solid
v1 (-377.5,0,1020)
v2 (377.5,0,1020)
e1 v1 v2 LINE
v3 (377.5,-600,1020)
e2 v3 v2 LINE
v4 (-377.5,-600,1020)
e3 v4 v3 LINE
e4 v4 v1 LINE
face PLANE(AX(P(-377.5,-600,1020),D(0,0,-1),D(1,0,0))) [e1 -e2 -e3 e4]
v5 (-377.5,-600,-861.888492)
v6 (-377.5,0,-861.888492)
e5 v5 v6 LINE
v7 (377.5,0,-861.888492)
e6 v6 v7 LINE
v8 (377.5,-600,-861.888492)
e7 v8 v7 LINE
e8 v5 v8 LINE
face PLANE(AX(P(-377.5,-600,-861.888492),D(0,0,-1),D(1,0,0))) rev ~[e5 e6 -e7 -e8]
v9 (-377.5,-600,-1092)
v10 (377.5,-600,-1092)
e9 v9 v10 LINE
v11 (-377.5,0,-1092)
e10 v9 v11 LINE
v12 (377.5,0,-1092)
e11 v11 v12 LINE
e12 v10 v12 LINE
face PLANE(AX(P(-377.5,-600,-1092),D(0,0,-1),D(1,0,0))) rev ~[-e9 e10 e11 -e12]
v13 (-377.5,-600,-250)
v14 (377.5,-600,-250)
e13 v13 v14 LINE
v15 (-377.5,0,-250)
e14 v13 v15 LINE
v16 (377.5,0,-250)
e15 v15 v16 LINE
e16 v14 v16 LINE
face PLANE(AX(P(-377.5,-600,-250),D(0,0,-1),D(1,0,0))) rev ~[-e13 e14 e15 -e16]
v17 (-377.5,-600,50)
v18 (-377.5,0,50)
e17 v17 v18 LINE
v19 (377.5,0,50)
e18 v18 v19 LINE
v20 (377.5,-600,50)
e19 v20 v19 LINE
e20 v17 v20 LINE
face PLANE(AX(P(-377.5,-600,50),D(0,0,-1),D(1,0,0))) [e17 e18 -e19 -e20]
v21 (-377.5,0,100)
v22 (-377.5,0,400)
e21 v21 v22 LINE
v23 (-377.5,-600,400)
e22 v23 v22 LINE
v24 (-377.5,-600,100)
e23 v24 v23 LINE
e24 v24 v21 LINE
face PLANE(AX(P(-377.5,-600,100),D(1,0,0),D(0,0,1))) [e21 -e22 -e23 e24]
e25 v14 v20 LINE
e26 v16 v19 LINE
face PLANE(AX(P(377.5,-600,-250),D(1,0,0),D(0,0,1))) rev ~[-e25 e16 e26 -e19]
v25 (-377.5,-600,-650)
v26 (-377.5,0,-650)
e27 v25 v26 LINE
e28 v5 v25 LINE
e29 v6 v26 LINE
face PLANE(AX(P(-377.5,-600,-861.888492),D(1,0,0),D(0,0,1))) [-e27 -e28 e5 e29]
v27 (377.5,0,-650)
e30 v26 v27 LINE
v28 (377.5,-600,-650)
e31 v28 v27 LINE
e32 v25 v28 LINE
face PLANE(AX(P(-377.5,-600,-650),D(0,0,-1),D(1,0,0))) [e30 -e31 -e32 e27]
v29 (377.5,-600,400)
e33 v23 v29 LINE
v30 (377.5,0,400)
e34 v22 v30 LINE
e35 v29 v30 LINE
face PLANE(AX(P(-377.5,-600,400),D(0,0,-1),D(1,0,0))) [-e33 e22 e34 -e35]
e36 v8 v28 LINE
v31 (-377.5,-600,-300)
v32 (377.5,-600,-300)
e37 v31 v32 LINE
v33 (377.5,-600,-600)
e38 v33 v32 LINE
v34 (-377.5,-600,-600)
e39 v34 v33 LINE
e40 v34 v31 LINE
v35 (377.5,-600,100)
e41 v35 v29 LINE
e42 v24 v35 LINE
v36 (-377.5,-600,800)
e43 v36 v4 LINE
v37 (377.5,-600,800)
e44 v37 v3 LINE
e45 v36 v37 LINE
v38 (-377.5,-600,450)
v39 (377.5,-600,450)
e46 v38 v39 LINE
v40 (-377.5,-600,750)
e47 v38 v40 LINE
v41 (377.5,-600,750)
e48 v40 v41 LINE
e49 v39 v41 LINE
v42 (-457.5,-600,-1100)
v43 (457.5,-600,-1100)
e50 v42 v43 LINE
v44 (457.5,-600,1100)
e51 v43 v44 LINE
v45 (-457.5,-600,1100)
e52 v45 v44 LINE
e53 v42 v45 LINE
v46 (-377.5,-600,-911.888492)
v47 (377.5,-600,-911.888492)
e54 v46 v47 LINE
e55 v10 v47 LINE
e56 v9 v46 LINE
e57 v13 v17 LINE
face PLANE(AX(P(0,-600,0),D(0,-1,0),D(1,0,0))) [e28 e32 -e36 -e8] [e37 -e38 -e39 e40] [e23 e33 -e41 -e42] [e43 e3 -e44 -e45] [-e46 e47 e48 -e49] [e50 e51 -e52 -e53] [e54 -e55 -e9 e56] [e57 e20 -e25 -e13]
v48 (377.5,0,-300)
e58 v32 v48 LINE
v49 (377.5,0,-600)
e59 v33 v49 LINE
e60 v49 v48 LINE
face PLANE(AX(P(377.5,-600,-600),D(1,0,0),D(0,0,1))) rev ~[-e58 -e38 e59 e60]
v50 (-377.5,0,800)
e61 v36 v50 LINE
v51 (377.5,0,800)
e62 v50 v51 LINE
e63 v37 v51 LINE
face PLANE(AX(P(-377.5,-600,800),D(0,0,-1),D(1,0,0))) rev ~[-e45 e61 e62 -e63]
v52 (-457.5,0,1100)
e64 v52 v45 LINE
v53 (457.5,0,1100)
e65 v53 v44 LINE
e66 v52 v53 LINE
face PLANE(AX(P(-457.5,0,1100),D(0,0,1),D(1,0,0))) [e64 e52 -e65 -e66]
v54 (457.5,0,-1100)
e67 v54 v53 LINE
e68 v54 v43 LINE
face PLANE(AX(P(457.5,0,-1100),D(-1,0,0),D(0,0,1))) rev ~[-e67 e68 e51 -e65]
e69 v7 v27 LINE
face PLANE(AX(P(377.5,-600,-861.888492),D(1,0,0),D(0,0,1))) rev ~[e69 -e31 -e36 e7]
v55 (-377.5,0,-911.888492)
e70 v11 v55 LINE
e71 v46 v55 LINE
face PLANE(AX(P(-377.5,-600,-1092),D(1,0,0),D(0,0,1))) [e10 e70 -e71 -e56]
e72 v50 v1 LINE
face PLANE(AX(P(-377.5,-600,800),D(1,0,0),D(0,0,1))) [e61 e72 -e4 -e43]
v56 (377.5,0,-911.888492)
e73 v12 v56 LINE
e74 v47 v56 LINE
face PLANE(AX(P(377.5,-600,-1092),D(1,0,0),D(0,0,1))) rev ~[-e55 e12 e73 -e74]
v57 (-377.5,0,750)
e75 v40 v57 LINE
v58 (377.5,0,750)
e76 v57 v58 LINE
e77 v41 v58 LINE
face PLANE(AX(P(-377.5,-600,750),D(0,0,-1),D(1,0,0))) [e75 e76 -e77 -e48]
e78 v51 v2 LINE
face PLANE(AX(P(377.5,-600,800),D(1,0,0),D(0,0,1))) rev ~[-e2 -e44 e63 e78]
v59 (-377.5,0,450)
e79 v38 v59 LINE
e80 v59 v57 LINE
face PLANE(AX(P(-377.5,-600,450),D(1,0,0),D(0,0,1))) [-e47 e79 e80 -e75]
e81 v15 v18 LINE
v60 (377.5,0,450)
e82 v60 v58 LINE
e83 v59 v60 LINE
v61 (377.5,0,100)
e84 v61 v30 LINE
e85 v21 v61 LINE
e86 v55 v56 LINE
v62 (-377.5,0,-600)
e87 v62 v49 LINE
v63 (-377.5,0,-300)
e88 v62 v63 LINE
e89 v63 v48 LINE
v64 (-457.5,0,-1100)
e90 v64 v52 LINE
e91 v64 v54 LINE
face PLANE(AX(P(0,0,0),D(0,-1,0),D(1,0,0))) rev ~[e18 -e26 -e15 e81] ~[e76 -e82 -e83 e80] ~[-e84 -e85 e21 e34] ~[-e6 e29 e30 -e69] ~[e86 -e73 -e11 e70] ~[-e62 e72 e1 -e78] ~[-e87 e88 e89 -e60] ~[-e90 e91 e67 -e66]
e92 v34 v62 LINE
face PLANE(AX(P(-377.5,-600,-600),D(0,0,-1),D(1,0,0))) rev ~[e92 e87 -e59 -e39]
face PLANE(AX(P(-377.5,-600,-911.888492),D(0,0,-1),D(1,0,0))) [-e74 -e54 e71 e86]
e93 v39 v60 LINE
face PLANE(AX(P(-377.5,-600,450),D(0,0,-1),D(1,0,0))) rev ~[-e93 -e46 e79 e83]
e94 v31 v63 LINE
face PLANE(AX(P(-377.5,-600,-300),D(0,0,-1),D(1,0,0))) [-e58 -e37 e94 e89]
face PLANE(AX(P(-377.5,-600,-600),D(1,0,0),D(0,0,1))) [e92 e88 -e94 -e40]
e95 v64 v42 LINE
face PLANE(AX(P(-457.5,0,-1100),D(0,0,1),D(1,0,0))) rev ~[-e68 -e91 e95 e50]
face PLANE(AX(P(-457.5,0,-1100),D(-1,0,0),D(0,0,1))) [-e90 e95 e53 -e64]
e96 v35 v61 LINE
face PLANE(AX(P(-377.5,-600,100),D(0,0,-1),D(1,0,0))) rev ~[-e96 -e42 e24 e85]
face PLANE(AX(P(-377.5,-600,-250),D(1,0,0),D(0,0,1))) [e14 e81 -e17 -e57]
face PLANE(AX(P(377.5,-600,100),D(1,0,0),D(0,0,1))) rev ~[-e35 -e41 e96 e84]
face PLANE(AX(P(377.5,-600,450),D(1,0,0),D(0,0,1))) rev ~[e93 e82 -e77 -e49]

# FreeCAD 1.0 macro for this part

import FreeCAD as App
import Part
import Sketcher

V = App.Vector
Q = App.Units.Quantity

doc = App.newDocument("Part")
body = doc.addObject("PartDesign::Body", "Body")

sketch1 = doc.addObject("Sketcher::SketchObject", "Sketch")
body.addObject(sketch1)
sketch1.AttachmentSupport = (doc.XZ_Plane, [""])
sketch1.MapMode = "FlatFace"
sketch1.addGeometry([
    Part.LineSegment(V(-457.5, 1100, 0), V(-457.5, -1100, 0)),
    Part.LineSegment(V(-457.5, -1100, 0), V(457.5, -1100, 0)),
    Part.LineSegment(V(457.5, -1100, 0), V(457.5, 1100, 0)),
    Part.LineSegment(V(457.5, 1100, 0), V(-457.5, 1100, 0)),
], False)
sketch1.addConstraint([
    Sketcher.Constraint("Coincident", 0, 2, 1, 1),
    Sketcher.Constraint("Coincident", 1, 2, 2, 1),
    Sketcher.Constraint("Coincident", 2, 2, 3, 1),
    Sketcher.Constraint("Coincident", 3, 2, 0, 1),
    Sketcher.Constraint("Vertical", 0),
    Sketcher.Constraint("Horizontal", 1),
    Sketcher.Constraint("Vertical", 2),
    Sketcher.Constraint("Horizontal", 3),
    Sketcher.Constraint("Symmetric", 0, 2, 2, 2, -1, 1),
    Sketcher.Constraint("DistanceX", 1, 1, 1, 2, Q("915 mm")),
    Sketcher.Constraint("DistanceY", 0, 2, 0, 1, Q("2200 mm")),
])
pad1 = doc.addObject("PartDesign::Pad", "Pad")
body.addObject(pad1)
pad1.Profile = sketch1
pad1.Length = 600

sketch2 = doc.addObject("Sketcher::SketchObject", "Sketch001")
body.addObject(sketch2)
sketch2.AttachmentSupport = (doc.XZ_Plane, [""])
sketch2.MapMode = "FlatFace"
sketch2.AttachmentOffset = App.Placement(V(0, 0, 600), App.Rotation())
sketch2.addGeometry([
    Part.LineSegment(V(-377.5, 1020, 0), V(-377.5, 800, 0)),
    Part.LineSegment(V(-377.5, 800, 0), V(377.5, 800, 0)),
    Part.LineSegment(V(377.5, 800, 0), V(377.5, 1020, 0)),
    Part.LineSegment(V(377.5, 1020, 0), V(-377.5, 1020, 0)),
    Part.LineSegment(V(-377.5, 750, 0), V(-377.5, 450, 0)),
    Part.LineSegment(V(-377.5, 450, 0), V(377.5, 450, 0)),
    Part.LineSegment(V(377.5, 450, 0), V(377.5, 750, 0)),
    Part.LineSegment(V(377.5, 750, 0), V(-377.5, 750, 0)),
    Part.LineSegment(V(-377.5, 400, 0), V(-377.5, 100, 0)),
    Part.LineSegment(V(-377.5, 100, 0), V(377.5, 100, 0)),
    Part.LineSegment(V(377.5, 100, 0), V(377.5, 400, 0)),
    Part.LineSegment(V(377.5, 400, 0), V(-377.5, 400, 0)),
    Part.LineSegment(V(-377.5, 50, 0), V(-377.5, -250, 0)),
    Part.LineSegment(V(-377.5, -250, 0), V(377.5, -250, 0)),
    Part.LineSegment(V(377.5, -250, 0), V(377.5, 50, 0)),
    Part.LineSegment(V(377.5, 50, 0), V(-377.5, 50, 0)),
    Part.LineSegment(V(-377.5, -300, 0), V(-377.5, -600, 0)),
    Part.LineSegment(V(-377.5, -600, 0), V(377.5, -600, 0)),
    Part.LineSegment(V(377.5, -600, 0), V(377.5, -300, 0)),
    Part.LineSegment(V(377.5, -300, 0), V(-377.5, -300, 0)),
    Part.LineSegment(V(-377.5, -650, 0), V(-377.5, -861.888492, 0)),
    Part.LineSegment(V(-377.5, -861.888492, 0), V(377.5, -861.888492, 0)),
    Part.LineSegment(V(377.5, -861.888492, 0), V(377.5, -650, 0)),
    Part.LineSegment(V(377.5, -650, 0), V(-377.5, -650, 0)),
    Part.LineSegment(V(-377.5, -911.888492, 0), V(-377.5, -1092, 0)),
    Part.LineSegment(V(-377.5, -1092, 0), V(377.5, -1092, 0)),
    Part.LineSegment(V(377.5, -1092, 0), V(377.5, -911.888492, 0)),
    Part.LineSegment(V(377.5, -911.888492, 0), V(-377.5, -911.888492, 0)),
], False)
sketch2.addConstraint([
    Sketcher.Constraint("Coincident", 0, 2, 1, 1),
    Sketcher.Constraint("Coincident", 1, 2, 2, 1),
    Sketcher.Constraint("Coincident", 2, 2, 3, 1),
    Sketcher.Constraint("Coincident", 3, 2, 0, 1),
    Sketcher.Constraint("Coincident", 4, 2, 5, 1),
    Sketcher.Constraint("Coincident", 5, 2, 6, 1),
    Sketcher.Constraint("Coincident", 6, 2, 7, 1),
    Sketcher.Constraint("Coincident", 7, 2, 4, 1),
    Sketcher.Constraint("Coincident", 8, 2, 9, 1),
    Sketcher.Constraint("Coincident", 9, 2, 10, 1),
    Sketcher.Constraint("Coincident", 10, 2, 11, 1),
    Sketcher.Constraint("Coincident", 11, 2, 8, 1),
    Sketcher.Constraint("Coincident", 12, 2, 13, 1),
    Sketcher.Constraint("Coincident", 13, 2, 14, 1),
    Sketcher.Constraint("Coincident", 14, 2, 15, 1),
    Sketcher.Constraint("Coincident", 15, 2, 12, 1),
    Sketcher.Constraint("Coincident", 16, 2, 17, 1),
    Sketcher.Constraint("Coincident", 17, 2, 18, 1),
    Sketcher.Constraint("Coincident", 18, 2, 19, 1),
    Sketcher.Constraint("Coincident", 19, 2, 16, 1),
    Sketcher.Constraint("Coincident", 20, 2, 21, 1),
    Sketcher.Constraint("Coincident", 21, 2, 22, 1),
    Sketcher.Constraint("Coincident", 22, 2, 23, 1),
    Sketcher.Constraint("Coincident", 23, 2, 20, 1),
    Sketcher.Constraint("Coincident", 24, 2, 25, 1),
    Sketcher.Constraint("Coincident", 25, 2, 26, 1),
    Sketcher.Constraint("Coincident", 26, 2, 27, 1),
    Sketcher.Constraint("Coincident", 27, 2, 24, 1),
    Sketcher.Constraint("Vertical", 0),
    Sketcher.Constraint("Horizontal", 1),
    Sketcher.Constraint("Vertical", 2),
    Sketcher.Constraint("Horizontal", 3),
    Sketcher.Constraint("Vertical", 4),
    Sketcher.Constraint("Horizontal", 5),
    Sketcher.Constraint("Vertical", 6),
    Sketcher.Constraint("Horizontal", 7),
    Sketcher.Constraint("Vertical", 8),
    Sketcher.Constraint("Horizontal", 9),
    Sketcher.Constraint("Vertical", 10),
    Sketcher.Constraint("Horizontal", 11),
    Sketcher.Constraint("Vertical", 12),
    Sketcher.Constraint("Horizontal", 13),
    Sketcher.Constraint("Vertical", 14),
    Sketcher.Constraint("Horizontal", 15),
    Sketcher.Constraint("Vertical", 16),
    Sketcher.Constraint("Horizontal", 17),
    Sketcher.Constraint("Vertical", 18),
    Sketcher.Constraint("Horizontal", 19),
    Sketcher.Constraint("Vertical", 20),
    Sketcher.Constraint("Horizontal", 21),
    Sketcher.Constraint("Vertical", 22),
    Sketcher.Constraint("Horizontal", 23),
    Sketcher.Constraint("Vertical", 24),
    Sketcher.Constraint("Horizontal", 25),
    Sketcher.Constraint("Vertical", 26),
    Sketcher.Constraint("Horizontal", 27),
    Sketcher.Constraint("Vertical", 3, 2, 4, 2),
    Sketcher.Constraint("Vertical", 2, 2, 5, 2),
    Sketcher.Constraint("Vertical", 7, 2, 8, 2),
    Sketcher.Constraint("Vertical", 6, 2, 9, 2),
    Sketcher.Constraint("Vertical", 11, 2, 12, 2),
    Sketcher.Constraint("Vertical", 10, 2, 13, 2),
    Sketcher.Constraint("Vertical", 15, 2, 16, 2),
    Sketcher.Constraint("Vertical", 14, 2, 17, 2),
    Sketcher.Constraint("Vertical", 19, 2, 20, 2),
    Sketcher.Constraint("Vertical", 18, 2, 21, 2),
    Sketcher.Constraint("Vertical", 23, 2, 24, 2),
    Sketcher.Constraint("Vertical", 22, 2, 25, 2),
    Sketcher.Constraint("Equal", 6, 8),
    Sketcher.Constraint("Equal", 10, 12),
    Sketcher.Constraint("Equal", 14, 16),
    Sketcher.Constraint("DistanceX", 1, 1, 1, 2, Q("755 mm")),
    Sketcher.Constraint("DistanceY", 0, 2, 0, 1, Q("220 mm")),
    Sketcher.Constraint("DistanceY", 4, 2, 4, 1, Q("300 mm")),
    Sketcher.Constraint("DistanceY", -1, 1, 0, 2, Q("800 mm")),
    Sketcher.Constraint("DistanceY", -1, 1, 4, 2, Q("450 mm")),
    Sketcher.Constraint("DistanceY", -1, 1, 8, 2, Q("100 mm")),
    Sketcher.Constraint("DistanceY", 12, 2, -1, 1, Q("250 mm")),
    Sketcher.Constraint("DistanceY", 16, 2, -1, 1, Q("600 mm")),
    Sketcher.Constraint("DistanceY", 22, 2, -1, 1, Q("650 mm")),
    Sketcher.Constraint("DistanceY", 24, 2, -1, 1, Q("1092 mm")),
    Sketcher.Constraint("DistanceY", 26, 2, 21, 2, Q("50 mm")),
    Sketcher.Constraint("DistanceX", 0, 2, -1, 1, Q("377.5 mm")),
    Sketcher.Constraint("DistanceY", 20, 2, 20, 1, Q("211.888492 mm")),
])
pocket1 = doc.addObject("PartDesign::Pocket", "Pocket")
body.addObject(pocket1)
pocket1.Profile = sketch2
pocket1.Type = "ThroughAll"

doc.recompute()
